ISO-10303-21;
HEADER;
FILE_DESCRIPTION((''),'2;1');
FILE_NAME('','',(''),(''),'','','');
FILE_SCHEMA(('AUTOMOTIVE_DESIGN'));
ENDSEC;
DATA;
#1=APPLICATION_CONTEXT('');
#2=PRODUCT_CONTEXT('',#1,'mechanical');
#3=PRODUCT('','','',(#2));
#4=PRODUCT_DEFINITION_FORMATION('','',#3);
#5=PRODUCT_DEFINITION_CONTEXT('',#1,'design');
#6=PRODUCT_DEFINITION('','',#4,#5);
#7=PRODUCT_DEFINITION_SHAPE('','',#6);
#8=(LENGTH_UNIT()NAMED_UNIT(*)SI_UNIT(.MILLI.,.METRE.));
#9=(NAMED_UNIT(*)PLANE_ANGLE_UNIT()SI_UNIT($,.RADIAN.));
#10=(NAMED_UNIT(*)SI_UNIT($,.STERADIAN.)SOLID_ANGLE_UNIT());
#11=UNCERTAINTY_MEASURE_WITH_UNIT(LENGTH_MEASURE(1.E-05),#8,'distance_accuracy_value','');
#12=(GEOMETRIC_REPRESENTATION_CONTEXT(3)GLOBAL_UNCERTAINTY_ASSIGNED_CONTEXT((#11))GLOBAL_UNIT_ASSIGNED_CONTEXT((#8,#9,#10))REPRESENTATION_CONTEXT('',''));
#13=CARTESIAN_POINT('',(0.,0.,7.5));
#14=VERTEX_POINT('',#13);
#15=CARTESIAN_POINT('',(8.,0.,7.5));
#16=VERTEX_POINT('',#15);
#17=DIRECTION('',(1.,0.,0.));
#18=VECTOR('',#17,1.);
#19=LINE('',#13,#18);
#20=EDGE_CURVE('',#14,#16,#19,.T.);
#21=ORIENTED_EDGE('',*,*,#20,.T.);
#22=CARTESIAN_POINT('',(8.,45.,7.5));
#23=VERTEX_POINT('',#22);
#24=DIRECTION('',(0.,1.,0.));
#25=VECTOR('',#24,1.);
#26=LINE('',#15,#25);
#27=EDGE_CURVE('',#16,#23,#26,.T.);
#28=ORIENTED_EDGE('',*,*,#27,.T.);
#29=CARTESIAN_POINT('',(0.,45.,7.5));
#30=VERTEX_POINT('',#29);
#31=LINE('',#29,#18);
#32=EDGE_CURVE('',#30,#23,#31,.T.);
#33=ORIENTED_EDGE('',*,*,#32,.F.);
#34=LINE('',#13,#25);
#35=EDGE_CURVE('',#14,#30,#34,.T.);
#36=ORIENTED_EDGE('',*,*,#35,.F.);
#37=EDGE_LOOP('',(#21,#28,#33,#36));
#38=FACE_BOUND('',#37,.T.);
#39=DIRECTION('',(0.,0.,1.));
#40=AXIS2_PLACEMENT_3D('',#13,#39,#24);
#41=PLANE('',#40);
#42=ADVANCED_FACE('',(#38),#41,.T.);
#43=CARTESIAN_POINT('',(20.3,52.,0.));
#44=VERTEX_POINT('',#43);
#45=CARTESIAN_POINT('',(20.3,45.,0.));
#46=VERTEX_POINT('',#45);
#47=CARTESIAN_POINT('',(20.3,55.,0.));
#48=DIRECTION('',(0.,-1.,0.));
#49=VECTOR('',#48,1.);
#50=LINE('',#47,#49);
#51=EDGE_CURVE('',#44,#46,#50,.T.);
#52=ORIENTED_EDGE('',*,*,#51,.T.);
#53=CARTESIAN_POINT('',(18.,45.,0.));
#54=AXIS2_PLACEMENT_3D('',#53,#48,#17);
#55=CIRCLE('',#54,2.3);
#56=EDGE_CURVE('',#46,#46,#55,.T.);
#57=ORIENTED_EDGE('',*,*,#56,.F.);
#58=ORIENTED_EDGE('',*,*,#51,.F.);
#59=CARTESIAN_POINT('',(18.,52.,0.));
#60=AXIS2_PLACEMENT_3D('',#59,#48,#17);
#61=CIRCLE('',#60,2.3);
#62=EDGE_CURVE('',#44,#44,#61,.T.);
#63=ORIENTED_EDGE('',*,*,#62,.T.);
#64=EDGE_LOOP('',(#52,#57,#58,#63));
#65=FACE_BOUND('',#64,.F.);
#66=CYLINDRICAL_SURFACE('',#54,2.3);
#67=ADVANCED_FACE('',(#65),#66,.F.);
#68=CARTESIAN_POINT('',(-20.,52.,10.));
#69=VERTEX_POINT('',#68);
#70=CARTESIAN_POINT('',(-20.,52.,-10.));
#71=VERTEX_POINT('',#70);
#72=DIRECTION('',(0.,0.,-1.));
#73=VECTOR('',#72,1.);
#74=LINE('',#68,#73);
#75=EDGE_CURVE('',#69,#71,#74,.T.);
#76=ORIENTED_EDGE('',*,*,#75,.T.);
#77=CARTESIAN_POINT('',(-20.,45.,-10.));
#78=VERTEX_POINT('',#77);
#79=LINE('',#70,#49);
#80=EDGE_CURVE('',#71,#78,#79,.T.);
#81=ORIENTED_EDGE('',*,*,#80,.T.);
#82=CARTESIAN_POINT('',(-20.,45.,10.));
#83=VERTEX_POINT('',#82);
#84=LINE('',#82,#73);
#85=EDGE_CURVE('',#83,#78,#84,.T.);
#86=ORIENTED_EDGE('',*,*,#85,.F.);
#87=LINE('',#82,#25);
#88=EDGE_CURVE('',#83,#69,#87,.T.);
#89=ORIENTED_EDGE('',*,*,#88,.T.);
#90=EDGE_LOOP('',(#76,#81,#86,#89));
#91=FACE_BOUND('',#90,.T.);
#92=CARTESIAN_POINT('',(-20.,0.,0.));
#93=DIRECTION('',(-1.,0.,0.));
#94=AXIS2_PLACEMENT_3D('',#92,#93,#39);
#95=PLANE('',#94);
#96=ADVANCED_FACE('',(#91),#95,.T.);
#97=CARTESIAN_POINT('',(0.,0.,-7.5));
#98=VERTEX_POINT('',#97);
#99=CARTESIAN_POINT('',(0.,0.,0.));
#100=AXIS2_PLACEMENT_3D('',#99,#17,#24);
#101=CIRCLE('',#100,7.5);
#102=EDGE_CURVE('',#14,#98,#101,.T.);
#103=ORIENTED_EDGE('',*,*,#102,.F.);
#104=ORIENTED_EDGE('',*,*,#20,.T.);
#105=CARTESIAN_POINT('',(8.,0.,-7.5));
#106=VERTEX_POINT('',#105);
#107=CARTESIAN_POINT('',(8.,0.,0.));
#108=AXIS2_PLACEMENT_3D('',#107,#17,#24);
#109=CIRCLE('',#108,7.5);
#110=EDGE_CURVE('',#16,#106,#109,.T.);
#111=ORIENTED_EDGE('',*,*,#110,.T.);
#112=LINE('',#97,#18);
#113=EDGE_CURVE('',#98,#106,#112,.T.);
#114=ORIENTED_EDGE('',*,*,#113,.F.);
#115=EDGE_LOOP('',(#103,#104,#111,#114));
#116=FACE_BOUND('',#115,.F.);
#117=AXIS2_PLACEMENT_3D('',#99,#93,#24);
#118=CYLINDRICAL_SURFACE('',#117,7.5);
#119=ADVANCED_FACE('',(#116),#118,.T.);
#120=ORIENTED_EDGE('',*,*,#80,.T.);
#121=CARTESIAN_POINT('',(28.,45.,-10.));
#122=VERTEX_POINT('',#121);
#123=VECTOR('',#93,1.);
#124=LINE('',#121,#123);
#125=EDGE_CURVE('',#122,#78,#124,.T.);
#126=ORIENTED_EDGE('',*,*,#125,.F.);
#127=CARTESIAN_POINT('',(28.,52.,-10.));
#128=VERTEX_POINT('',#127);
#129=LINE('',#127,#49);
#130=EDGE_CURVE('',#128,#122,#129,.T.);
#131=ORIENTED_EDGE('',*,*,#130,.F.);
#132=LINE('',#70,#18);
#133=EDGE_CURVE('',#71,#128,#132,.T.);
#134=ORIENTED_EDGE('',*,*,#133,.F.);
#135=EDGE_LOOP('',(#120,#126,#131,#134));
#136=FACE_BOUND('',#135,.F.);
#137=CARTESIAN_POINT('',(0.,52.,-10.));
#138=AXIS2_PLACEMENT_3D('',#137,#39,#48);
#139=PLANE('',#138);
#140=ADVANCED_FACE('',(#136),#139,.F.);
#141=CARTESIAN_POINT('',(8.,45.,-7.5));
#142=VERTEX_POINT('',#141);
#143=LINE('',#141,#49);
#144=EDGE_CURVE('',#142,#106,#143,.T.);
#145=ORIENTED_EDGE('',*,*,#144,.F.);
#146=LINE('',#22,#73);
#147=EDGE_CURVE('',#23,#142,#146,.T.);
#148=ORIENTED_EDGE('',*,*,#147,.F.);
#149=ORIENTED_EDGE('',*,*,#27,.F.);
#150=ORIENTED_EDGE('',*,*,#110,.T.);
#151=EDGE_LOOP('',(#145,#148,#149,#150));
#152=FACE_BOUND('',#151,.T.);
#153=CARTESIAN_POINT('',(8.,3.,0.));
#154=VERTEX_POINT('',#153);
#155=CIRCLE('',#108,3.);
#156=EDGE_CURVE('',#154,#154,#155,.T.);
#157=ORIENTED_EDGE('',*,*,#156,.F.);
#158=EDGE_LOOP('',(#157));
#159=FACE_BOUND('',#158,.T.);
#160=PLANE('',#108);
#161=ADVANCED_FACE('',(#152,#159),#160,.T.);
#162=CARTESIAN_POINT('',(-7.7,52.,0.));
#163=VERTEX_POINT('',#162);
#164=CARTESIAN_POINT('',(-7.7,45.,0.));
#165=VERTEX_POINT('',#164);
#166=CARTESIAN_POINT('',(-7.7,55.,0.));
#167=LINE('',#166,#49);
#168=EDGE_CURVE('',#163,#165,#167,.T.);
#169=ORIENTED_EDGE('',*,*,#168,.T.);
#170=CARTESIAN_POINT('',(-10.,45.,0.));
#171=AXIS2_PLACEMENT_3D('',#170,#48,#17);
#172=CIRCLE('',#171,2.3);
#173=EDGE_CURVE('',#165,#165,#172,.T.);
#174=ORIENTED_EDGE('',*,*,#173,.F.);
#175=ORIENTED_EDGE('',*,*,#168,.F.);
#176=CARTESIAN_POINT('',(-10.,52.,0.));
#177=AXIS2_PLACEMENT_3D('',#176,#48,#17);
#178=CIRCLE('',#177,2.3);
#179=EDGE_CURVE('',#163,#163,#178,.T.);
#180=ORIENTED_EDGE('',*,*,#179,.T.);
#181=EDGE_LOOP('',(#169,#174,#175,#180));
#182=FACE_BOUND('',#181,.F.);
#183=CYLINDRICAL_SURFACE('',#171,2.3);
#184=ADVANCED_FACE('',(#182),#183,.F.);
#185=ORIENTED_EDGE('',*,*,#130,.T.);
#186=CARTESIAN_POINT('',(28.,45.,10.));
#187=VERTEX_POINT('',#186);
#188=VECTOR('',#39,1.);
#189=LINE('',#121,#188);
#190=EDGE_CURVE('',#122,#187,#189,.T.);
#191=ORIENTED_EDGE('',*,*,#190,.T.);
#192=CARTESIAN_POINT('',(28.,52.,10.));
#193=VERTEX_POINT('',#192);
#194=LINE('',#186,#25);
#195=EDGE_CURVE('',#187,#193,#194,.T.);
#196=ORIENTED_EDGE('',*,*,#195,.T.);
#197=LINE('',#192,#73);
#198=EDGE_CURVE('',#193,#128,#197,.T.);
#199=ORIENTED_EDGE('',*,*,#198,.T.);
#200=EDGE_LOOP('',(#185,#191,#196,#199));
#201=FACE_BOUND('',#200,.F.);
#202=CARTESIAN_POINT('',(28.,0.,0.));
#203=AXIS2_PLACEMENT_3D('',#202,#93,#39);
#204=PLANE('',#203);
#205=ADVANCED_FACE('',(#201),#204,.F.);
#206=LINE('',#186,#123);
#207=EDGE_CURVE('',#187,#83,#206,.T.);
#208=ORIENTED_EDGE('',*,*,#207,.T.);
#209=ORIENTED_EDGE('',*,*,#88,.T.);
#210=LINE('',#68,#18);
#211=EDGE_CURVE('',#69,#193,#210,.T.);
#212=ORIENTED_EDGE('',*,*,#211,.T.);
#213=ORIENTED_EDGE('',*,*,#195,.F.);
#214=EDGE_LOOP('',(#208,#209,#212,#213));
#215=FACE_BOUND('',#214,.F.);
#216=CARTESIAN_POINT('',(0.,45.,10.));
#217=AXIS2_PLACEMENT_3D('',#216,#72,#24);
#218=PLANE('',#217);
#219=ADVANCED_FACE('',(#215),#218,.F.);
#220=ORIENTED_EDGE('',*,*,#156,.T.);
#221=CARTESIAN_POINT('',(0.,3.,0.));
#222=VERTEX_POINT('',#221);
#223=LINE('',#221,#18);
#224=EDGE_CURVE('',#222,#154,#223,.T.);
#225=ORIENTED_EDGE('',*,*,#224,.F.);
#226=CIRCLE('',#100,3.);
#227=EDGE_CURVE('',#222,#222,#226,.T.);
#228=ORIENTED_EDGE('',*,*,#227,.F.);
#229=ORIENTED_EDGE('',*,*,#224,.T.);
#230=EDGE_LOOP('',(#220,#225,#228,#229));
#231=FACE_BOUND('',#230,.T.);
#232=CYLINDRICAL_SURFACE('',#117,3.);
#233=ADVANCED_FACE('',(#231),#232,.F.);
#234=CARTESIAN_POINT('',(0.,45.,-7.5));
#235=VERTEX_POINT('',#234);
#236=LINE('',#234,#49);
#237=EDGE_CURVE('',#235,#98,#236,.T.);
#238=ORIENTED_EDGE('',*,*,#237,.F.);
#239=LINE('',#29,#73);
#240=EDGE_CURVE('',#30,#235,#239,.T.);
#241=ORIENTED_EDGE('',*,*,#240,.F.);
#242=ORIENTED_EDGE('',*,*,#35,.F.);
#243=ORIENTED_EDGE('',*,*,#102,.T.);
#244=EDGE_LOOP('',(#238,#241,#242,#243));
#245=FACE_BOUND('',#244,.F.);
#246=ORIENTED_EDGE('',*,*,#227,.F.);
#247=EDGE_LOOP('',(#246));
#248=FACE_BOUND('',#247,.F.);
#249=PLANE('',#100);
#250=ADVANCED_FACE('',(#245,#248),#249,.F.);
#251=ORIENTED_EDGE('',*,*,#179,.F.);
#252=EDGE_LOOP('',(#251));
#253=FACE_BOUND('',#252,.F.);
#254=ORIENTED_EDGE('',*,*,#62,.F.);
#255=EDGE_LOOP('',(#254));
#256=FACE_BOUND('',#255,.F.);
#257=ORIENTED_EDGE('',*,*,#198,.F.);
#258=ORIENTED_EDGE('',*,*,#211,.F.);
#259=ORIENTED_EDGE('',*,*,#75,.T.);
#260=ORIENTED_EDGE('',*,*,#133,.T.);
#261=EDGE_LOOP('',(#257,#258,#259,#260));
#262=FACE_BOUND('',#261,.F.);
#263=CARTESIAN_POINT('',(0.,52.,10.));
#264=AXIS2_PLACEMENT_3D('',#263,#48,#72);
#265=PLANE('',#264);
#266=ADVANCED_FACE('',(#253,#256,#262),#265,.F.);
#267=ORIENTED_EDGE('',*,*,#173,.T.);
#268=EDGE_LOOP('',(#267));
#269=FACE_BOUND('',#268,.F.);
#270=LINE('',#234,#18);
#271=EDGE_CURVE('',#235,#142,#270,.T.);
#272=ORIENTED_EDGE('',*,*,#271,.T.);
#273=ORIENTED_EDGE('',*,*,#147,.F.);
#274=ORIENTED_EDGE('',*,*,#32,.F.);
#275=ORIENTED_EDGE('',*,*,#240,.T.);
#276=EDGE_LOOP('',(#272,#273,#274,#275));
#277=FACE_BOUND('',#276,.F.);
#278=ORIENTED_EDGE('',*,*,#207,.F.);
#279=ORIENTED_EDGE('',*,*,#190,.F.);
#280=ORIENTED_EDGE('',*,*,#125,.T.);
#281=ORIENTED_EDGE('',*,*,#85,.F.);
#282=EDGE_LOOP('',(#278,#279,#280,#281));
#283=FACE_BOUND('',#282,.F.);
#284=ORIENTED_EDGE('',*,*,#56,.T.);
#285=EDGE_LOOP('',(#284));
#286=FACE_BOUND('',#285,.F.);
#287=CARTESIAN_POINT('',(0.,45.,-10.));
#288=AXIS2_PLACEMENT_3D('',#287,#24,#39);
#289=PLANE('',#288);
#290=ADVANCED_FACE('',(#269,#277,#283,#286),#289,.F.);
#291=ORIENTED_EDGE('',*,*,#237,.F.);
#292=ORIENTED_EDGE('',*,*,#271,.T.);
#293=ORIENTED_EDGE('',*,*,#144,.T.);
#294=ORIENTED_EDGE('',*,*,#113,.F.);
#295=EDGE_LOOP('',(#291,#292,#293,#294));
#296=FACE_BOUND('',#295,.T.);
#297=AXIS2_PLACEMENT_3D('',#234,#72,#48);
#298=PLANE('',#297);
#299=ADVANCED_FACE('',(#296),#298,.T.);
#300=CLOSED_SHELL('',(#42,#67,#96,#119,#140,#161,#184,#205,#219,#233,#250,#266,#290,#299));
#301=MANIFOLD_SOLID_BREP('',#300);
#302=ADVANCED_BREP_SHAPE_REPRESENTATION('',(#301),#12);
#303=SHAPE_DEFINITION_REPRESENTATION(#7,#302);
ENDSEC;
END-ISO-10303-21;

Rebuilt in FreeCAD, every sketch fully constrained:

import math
import FreeCAD as App
import Part
import Sketcher

V = App.Vector

doc = App.newDocument("Part")
body = doc.addObject("PartDesign::Body", "Body")

# Sketch on YZ plane
sketch1 = body.newObject("Sketcher::SketchObject", "Sketch")
sketch1.AttachmentSupport = (doc.getObject("YZ_Plane"), [""])
sketch1.MapMode = "FlatFace"
sketch1.addGeometry([
    Part.ArcOfCircle(Part.Circle(V(0, 0, 0), V(0, 0, 1), 7.5), math.radians(90), math.radians(270)),  # 0
    Part.LineSegment(V(0, -7.5, 0), V(45, -7.5, 0)),  # 1
    Part.LineSegment(V(45, -7.5, 0), V(45, 7.5, 0)),  # 2
    Part.LineSegment(V(45, 7.5, 0), V(0, 7.5, 0)),  # 3
    Part.Circle(V(0, 0, 0), V(0, 0, 1), 3),  # 4
], False)
sketch1.addConstraint([
    Sketcher.Constraint("Tangent", 0, 2, 1, 1),
    Sketcher.Constraint("Coincident", 1, 2, 2, 1),
    Sketcher.Constraint("Coincident", 2, 2, 3, 1),
    Sketcher.Constraint("Tangent", 3, 2, 0, 1),
    Sketcher.Constraint("Horizontal", 1),
    Sketcher.Constraint("Vertical", 2),
    Sketcher.Constraint("Horizontal", 3),
    Sketcher.Constraint("Coincident", 0, 3, -1, 1),
    Sketcher.Constraint("Coincident", 4, 3, -1, 1),
    Sketcher.Constraint("Diameter", 4, 6.0),
    Sketcher.Constraint("Radius", 0, 7.5),
    Sketcher.Constraint("DistanceX", 1, 1, 1, 2, 45.0),
])
pad1 = body.newObject("PartDesign::Pad", "Pad")
pad1.Profile = sketch1
pad1.Length = 8

# Sketch on YZ plane
sketch2 = body.newObject("Sketcher::SketchObject", "Sketch001")
sketch2.AttachmentSupport = (doc.getObject("YZ_Plane"), [""])
sketch2.MapMode = "FlatFace"
sketch2.addGeometry([
    Part.LineSegment(V(52, -10, 0), V(45, -10, 0)),
    Part.LineSegment(V(45, -10, 0), V(45, 10, 0)),
    Part.LineSegment(V(45, 10, 0), V(52, 10, 0)),
    Part.LineSegment(V(52, 10, 0), V(52, -10, 0)),
], False)
sketch2.addConstraint([
    Sketcher.Constraint("Coincident", 0, 2, 1, 1),
    Sketcher.Constraint("Coincident", 1, 2, 2, 1),
    Sketcher.Constraint("Coincident", 2, 2, 3, 1),
    Sketcher.Constraint("Coincident", 3, 2, 0, 1),
    Sketcher.Constraint("Horizontal", 0),
    Sketcher.Constraint("Vertical", 1),
    Sketcher.Constraint("Horizontal", 2),
    Sketcher.Constraint("Vertical", 3),
    Sketcher.Constraint("DistanceX", 0, 2, 0, 1, 7.0),
    Sketcher.Constraint("DistanceY", 1, 1, 1, 2, 20.0),
    Sketcher.Constraint("DistanceX", -1, 1, 0, 2, 45.0),
    Sketcher.Constraint("DistanceY", 0, 2, -1, 1, 10.0),
])
pad2 = body.newObject("PartDesign::Pad", "Pad001")
pad2.Profile = sketch2
pad2.Type = "TwoLengths"
pad2.Length = 20
pad2.Length2 = 28
pad2.Reversed = True

# Sketch on XZ plane
sketch3 = body.newObject("Sketcher::SketchObject", "Sketch002")
sketch3.AttachmentSupport = (doc.getObject("XZ_Plane"), [""])
sketch3.MapMode = "FlatFace"
sketch3.AttachmentOffset = App.Placement(V(0, 0, -45), App.Rotation())
sketch3.addGeometry([
    Part.Circle(V(18, 0, 0), V(0, 0, 1), 2.3),
    Part.Circle(V(-10, 0, 0), V(0, 0, 1), 2.3),
], False)
sketch3.addConstraint([
    Sketcher.Constraint("Equal", 0, 1),
    Sketcher.Constraint("PointOnObject", 0, 3, -1),
    Sketcher.Constraint("PointOnObject", 1, 3, -1),
    Sketcher.Constraint("Diameter", 0, 4.6),
    Sketcher.Constraint("DistanceX", 1, 3, -1, 1, 10.0),
    Sketcher.Constraint("DistanceX", -1, 1, 0, 3, 18.0),
])
pocket1 = body.newObject("PartDesign::Pocket", "Pocket")
pocket1.Profile = sketch3
pocket1.Length = 20
pocket1.Midplane = True

doc.recompute()
